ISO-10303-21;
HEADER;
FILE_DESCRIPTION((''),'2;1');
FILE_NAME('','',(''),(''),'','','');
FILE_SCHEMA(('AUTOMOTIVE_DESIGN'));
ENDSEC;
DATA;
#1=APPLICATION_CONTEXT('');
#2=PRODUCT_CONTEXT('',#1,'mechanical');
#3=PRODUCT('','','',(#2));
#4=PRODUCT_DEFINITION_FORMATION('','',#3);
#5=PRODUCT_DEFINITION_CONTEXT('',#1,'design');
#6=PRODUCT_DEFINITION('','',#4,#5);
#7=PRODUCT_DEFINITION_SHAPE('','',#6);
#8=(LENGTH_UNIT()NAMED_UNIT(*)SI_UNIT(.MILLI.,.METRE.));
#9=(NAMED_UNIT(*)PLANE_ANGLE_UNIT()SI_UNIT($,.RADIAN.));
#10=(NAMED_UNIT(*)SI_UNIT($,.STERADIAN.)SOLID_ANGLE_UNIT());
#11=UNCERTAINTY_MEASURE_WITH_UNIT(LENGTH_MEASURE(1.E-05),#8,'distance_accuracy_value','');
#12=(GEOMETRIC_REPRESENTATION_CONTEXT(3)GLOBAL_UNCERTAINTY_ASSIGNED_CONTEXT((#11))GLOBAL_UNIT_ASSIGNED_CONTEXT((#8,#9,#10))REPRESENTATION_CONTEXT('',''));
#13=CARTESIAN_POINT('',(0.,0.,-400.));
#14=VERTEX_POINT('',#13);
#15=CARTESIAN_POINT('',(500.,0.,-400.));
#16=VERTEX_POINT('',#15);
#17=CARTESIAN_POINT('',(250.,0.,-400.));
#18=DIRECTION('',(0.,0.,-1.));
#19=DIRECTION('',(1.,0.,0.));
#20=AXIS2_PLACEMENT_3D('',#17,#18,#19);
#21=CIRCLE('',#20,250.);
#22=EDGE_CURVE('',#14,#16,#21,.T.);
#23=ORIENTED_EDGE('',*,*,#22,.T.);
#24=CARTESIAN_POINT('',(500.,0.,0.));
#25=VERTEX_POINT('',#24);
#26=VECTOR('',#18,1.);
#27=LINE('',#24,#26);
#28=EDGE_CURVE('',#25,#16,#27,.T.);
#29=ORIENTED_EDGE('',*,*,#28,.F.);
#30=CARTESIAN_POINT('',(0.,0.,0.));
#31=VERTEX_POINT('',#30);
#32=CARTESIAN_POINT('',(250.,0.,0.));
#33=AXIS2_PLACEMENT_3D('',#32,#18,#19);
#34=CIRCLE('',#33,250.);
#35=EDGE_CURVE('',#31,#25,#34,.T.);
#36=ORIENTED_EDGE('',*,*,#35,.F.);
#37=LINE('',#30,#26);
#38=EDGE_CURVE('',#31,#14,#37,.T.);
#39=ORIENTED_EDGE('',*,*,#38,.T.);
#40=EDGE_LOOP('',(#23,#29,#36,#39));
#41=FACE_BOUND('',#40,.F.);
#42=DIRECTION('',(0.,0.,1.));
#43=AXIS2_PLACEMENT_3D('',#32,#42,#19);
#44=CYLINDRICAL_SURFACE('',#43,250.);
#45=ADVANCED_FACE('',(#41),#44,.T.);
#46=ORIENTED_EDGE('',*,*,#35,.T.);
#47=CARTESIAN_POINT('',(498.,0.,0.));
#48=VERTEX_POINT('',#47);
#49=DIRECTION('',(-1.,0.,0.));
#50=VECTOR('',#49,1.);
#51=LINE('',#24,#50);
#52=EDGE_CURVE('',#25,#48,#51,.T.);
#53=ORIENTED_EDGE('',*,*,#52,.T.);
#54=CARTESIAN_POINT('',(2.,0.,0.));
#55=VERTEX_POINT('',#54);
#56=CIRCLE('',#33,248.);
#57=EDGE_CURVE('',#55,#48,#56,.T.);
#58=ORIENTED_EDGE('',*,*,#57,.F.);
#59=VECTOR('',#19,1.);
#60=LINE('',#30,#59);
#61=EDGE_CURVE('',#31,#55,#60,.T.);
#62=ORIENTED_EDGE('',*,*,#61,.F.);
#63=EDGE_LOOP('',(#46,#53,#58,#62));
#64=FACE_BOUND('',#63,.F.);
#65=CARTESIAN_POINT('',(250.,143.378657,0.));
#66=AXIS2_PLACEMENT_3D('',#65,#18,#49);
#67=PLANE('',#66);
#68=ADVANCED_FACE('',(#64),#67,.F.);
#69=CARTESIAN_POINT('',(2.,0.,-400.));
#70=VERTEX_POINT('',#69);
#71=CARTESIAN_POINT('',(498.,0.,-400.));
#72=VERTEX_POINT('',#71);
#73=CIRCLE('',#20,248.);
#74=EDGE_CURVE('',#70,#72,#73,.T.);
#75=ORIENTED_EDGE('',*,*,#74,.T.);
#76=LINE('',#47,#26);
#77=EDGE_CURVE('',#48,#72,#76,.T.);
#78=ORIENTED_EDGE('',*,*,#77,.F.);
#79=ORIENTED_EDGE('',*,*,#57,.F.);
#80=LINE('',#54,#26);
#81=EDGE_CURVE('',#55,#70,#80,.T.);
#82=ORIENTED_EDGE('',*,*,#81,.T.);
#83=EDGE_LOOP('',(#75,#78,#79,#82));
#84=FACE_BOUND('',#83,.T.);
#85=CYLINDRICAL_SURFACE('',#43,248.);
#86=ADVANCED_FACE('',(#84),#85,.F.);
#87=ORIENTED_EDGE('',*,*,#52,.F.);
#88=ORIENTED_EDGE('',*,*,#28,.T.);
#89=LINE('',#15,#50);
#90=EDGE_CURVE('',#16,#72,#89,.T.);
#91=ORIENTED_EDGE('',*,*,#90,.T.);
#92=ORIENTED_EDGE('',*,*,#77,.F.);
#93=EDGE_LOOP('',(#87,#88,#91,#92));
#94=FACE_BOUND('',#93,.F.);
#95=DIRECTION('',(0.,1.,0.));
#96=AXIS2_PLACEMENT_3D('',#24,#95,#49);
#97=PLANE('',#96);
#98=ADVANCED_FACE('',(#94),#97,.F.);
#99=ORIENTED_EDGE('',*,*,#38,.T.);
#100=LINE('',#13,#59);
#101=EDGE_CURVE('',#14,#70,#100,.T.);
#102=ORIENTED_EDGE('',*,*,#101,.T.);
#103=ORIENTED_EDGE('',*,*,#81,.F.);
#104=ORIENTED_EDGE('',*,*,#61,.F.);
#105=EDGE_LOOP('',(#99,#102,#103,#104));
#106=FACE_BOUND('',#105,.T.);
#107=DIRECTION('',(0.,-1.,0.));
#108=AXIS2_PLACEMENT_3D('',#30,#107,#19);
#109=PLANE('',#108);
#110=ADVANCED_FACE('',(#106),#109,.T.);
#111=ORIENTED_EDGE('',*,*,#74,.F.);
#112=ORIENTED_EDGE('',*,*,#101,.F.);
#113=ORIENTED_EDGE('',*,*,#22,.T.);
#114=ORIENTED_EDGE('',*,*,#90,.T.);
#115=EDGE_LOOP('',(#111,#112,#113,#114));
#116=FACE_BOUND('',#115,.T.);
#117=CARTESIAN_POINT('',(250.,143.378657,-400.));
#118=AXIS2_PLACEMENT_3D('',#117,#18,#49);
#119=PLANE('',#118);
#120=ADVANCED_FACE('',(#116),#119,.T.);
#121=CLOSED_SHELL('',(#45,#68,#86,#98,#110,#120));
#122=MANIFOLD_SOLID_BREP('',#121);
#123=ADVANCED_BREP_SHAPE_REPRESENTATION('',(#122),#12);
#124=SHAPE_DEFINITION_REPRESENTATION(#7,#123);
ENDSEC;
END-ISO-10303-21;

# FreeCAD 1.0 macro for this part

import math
import FreeCAD as App
import Part
import Sketcher
from FreeCAD import Vector

doc = App.newDocument("Part")
body = doc.addObject("PartDesign::Body", "Body")

sketch1 = body.newObject("Sketcher::SketchObject", "Sketch")
sketch1.AttachmentSupport = (doc.getObject("XY_Plane"), [""])
sketch1.MapMode = "FlatFace"
sketch1.addGeometry([
    Part.ArcOfCircle(Part.Circle(Vector(250, 0, 0), Vector(0, 0, 1), 250), math.radians(0), math.radians(180)),
    Part.LineSegment(Vector(0, 0, 0), Vector(2, 0, 0)),
    Part.ArcOfCircle(Part.Circle(Vector(250, 0, 0), Vector(0, 0, 1), 248), math.radians(0), math.radians(180)),
    Part.LineSegment(Vector(498, 0, 0), Vector(500, 0, 0)),
], False)
sketch1.addConstraint([
    Sketcher.Constraint("Coincident", 0, 2, 1, 1),
    Sketcher.Constraint("Coincident", 1, 2, 2, 2),
    Sketcher.Constraint("Coincident", 2, 1, 3, 1),
    Sketcher.Constraint("Coincident", 3, 2, 0, 1),
    Sketcher.Constraint("Horizontal", 1),
    Sketcher.Constraint("Horizontal", 3),
    Sketcher.Constraint("Coincident", 0, 2, -1, 1),
    Sketcher.Constraint("Coincident", 2, 3, 0, 3),
    Sketcher.Constraint("PointOnObject", 0, 3, -1),
    Sketcher.Constraint("PointOnObject", 2, 1, -1),
    Sketcher.Constraint("Radius", 0, 250.0),
    Sketcher.Constraint("Radius", 2, 248.0),
])
pad1 = body.newObject("PartDesign::Pad", "Pad")
pad1.Profile = sketch1
pad1.Length = 400
pad1.Reversed = True

doc.recompute()
